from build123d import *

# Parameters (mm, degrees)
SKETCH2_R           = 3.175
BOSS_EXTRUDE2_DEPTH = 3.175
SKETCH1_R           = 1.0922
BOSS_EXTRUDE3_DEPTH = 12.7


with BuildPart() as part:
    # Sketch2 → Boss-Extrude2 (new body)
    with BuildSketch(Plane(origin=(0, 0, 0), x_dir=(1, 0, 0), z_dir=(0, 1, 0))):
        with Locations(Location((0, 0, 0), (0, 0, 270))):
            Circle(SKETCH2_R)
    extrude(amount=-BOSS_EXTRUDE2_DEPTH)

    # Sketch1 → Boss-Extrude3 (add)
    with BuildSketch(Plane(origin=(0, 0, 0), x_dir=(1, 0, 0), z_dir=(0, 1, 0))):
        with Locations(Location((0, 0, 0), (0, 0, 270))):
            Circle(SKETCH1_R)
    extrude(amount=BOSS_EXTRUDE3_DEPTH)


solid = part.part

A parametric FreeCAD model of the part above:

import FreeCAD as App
import Part
import Sketcher

V = App.Vector
Q = App.Units.Quantity

doc = App.newDocument("Part")
body = doc.addObject("PartDesign::Body", "Body")

# Sketch on XZ plane
sketch1 = body.newObject("Sketcher::SketchObject", "Sketch")
sketch1.AttachmentSupport = (doc.getObject("XZ_Plane"), [""])
sketch1.MapMode = "FlatFace"
sketch1.addGeometry(Part.Circle(V(0, 0, 0), V(0, 0, 1), 3.175), False)
sketch1.addConstraint([
    Sketcher.Constraint("Coincident", 0, 3, -1, 1),
    Sketcher.Constraint("Diameter", 0, Q("0.25 in")),
])
pad1 = body.newObject("PartDesign::Pad", "Pad")
pad1.Profile = sketch1
pad1.Length = Q("0.125 in")

# Sketch on XZ plane
sketch2 = body.newObject("Sketcher::SketchObject", "Sketch001")
sketch2.AttachmentSupport = (doc.getObject("XZ_Plane"), [""])
sketch2.MapMode = "FlatFace"
sketch2.addGeometry(Part.Circle(V(0, 0, 0), V(0, 0, 1), 1.0922), False)
sketch2.addConstraint([
    Sketcher.Constraint("Coincident", 0, 3, -1, 1),
    Sketcher.Constraint("Diameter", 0, Q("0.086 in")),
])
pad2 = body.newObject("PartDesign::Pad", "Pad001")
pad2.Profile = sketch2
pad2.Length = Q("0.5 in")
pad2.Reversed = True

doc.recompute()
